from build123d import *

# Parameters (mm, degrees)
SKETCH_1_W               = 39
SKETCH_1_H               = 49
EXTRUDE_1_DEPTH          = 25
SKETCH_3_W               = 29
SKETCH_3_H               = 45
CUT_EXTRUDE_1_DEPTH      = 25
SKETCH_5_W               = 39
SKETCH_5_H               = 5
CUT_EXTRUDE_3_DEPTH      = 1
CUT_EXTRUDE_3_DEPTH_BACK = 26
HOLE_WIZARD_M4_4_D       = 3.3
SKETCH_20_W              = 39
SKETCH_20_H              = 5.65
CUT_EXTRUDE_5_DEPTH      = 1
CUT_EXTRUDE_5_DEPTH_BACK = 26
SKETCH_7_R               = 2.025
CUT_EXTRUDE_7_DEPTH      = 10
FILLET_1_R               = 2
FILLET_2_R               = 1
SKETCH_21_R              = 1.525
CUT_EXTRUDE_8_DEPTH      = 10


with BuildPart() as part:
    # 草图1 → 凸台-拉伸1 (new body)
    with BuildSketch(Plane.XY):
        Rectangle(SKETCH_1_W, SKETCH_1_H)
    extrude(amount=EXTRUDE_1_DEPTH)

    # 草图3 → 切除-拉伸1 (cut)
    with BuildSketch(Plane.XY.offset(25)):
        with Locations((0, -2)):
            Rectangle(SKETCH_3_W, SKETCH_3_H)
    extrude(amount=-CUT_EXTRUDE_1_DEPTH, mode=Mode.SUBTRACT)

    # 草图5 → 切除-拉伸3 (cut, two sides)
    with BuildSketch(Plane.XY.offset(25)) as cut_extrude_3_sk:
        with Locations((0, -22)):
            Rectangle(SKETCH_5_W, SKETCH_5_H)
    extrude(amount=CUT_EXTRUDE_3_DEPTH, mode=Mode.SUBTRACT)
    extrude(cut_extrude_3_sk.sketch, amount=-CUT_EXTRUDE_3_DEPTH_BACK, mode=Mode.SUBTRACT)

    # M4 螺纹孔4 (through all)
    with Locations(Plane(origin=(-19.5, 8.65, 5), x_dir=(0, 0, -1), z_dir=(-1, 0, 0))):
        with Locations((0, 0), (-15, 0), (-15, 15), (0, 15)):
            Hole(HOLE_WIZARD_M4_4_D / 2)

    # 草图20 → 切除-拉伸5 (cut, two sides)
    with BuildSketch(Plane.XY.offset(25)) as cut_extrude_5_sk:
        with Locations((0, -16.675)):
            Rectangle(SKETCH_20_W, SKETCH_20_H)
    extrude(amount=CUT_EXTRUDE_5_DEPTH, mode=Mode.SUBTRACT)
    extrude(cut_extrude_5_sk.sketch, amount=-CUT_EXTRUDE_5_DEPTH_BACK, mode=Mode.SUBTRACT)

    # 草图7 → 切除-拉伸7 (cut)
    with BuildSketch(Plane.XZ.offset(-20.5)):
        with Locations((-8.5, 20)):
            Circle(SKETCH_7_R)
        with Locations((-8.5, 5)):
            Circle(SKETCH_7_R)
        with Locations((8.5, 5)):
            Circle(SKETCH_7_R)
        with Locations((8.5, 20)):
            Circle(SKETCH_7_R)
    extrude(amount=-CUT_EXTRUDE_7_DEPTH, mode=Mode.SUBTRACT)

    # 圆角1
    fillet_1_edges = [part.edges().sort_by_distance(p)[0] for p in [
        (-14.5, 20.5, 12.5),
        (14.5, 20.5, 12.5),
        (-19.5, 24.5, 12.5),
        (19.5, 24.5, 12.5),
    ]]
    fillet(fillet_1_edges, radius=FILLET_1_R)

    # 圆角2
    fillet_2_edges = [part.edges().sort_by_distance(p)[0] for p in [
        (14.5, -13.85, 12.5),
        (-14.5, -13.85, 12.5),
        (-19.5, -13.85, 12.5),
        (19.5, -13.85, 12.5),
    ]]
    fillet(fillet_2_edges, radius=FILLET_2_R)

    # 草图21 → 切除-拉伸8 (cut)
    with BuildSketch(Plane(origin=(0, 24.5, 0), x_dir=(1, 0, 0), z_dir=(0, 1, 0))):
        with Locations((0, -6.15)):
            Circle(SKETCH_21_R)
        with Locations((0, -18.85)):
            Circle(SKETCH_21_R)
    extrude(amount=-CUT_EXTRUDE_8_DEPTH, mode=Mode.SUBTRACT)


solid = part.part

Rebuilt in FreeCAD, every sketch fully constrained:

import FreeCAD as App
import Part
import Sketcher


def edges_at(feature, points):
    """Names of the edges that pass closest to the given points."""
    edges = feature.Shape.Edges
    near = lambda p: min(range(len(edges)), key=lambda i: edges[i].distToShape(Part.Vertex(*p))[0])
    return sorted({f"Edge{near(p) + 1}" for p in points})

doc = App.newDocument("Part")
body = doc.addObject("PartDesign::Body", "Body")

# Sketch on XY plane
sketch1 = body.newObject("Sketcher::SketchObject", "Sketch")
sketch1.AttachmentSupport = (doc.getObject("XY_Plane"), [""])
sketch1.MapMode = "FlatFace"
sketch1.addGeometry(Part.LineSegment(App.Vector(-20, 24, 0), App.Vector(-20, -24, 0)), False)
sketch1.addGeometry(Part.LineSegment(App.Vector(-20, -24, 0), App.Vector(20, -24, 0)), False)
sketch1.addGeometry(Part.LineSegment(App.Vector(20, -24, 0), App.Vector(20, 24, 0)), False)
sketch1.addGeometry(Part.LineSegment(App.Vector(20, 24, 0), App.Vector(-20, 24, 0)), False)
sketch1.addConstraint(Sketcher.Constraint("Coincident", 0, 2, 1, 1))
sketch1.addConstraint(Sketcher.Constraint("Coincident", 1, 2, 2, 1))
sketch1.addConstraint(Sketcher.Constraint("Coincident", 2, 2, 3, 1))
sketch1.addConstraint(Sketcher.Constraint("Coincident", 3, 2, 0, 1))
sketch1.addConstraint(Sketcher.Constraint("Vertical", 0))
sketch1.addConstraint(Sketcher.Constraint("Horizontal", 1))
sketch1.addConstraint(Sketcher.Constraint("Vertical", 2))
sketch1.addConstraint(Sketcher.Constraint("Horizontal", 3))
sketch1.addConstraint(Sketcher.Constraint("Symmetric", 0, 2, 2, 2, -1, 1))
sketch1.addConstraint(Sketcher.Constraint("DistanceX", 1, 1, 1, 2, 39.0))
sketch1.addConstraint(Sketcher.Constraint("DistanceY", 0, 2, 0, 1, 49.0))
pad1 = body.newObject("PartDesign::Pad", "Pad")
pad1.Profile = sketch1
pad1.Length = 25

# Sketch on XY plane
sketch2 = body.newObject("Sketcher::SketchObject", "Sketch001")
sketch2.AttachmentSupport = (doc.getObject("XY_Plane"), [""])
sketch2.MapMode = "FlatFace"
sketch2.AttachmentOffset = App.Placement(App.Vector(0, 0, 25), App.Rotation())
sketch2.addGeometry(Part.LineSegment(App.Vector(-14, 20, 0), App.Vector(-14, -24, 0)), False)
sketch2.addGeometry(Part.LineSegment(App.Vector(-14, -24, 0), App.Vector(14, -24, 0)), False)
sketch2.addGeometry(Part.LineSegment(App.Vector(14, -24, 0), App.Vector(14, 20, 0)), False)
sketch2.addGeometry(Part.LineSegment(App.Vector(14, 20, 0), App.Vector(-14, 20, 0)), False)
sketch2.addConstraint(Sketcher.Constraint("Coincident", 0, 2, 1, 1))
sketch2.addConstraint(Sketcher.Constraint("Coincident", 1, 2, 2, 1))
sketch2.addConstraint(Sketcher.Constraint("Coincident", 2, 2, 3, 1))
sketch2.addConstraint(Sketcher.Constraint("Coincident", 3, 2, 0, 1))
sketch2.addConstraint(Sketcher.Constraint("Vertical", 0))
sketch2.addConstraint(Sketcher.Constraint("Horizontal", 1))
sketch2.addConstraint(Sketcher.Constraint("Vertical", 2))
sketch2.addConstraint(Sketcher.Constraint("Horizontal", 3))
sketch2.addConstraint(Sketcher.Constraint("DistanceX", 1, 1, 1, 2, 29.0))
sketch2.addConstraint(Sketcher.Constraint("DistanceY", 0, 2, 0, 1, 45.0))
sketch2.addConstraint(Sketcher.Constraint("DistanceX", 0, 2, -1, 1, 14.5))
sketch2.addConstraint(Sketcher.Constraint("DistanceY", 0, 2, -1, 1, 24.5))
pocket1 = body.newObject("PartDesign::Pocket", "Pocket")
pocket1.Profile = sketch2
pocket1.Length = 25

# Sketch on XY plane
sketch3 = body.newObject("Sketcher::SketchObject", "Sketch002")
sketch3.AttachmentSupport = (doc.getObject("XY_Plane"), [""])
sketch3.MapMode = "FlatFace"
sketch3.AttachmentOffset = App.Placement(App.Vector(0, 0, 25), App.Rotation())
sketch3.addGeometry(Part.LineSegment(App.Vector(-20, -20, 0), App.Vector(-20, -24, 0)), False)
sketch3.addGeometry(Part.LineSegment(App.Vector(-20, -24, 0), App.Vector(20, -24, 0)), False)
sketch3.addGeometry(Part.LineSegment(App.Vector(20, -24, 0), App.Vector(20, -20, 0)), False)
sketch3.addGeometry(Part.LineSegment(App.Vector(20, -20, 0), App.Vector(-20, -20, 0)), False)
sketch3.addConstraint(Sketcher.Constraint("Coincident", 0, 2, 1, 1))
sketch3.addConstraint(Sketcher.Constraint("Coincident", 1, 2, 2, 1))
sketch3.addConstraint(Sketcher.Constraint("Coincident", 2, 2, 3, 1))
sketch3.addConstraint(Sketcher.Constraint("Coincident", 3, 2, 0, 1))
sketch3.addConstraint(Sketcher.Constraint("Vertical", 0))
sketch3.addConstraint(Sketcher.Constraint("Horizontal", 1))
sketch3.addConstraint(Sketcher.Constraint("Vertical", 2))
sketch3.addConstraint(Sketcher.Constraint("Horizontal", 3))
sketch3.addConstraint(Sketcher.Constraint("DistanceX", 1, 1, 1, 2, 39.0))
sketch3.addConstraint(Sketcher.Constraint("DistanceY", 0, 2, 0, 1, 5.0))
sketch3.addConstraint(Sketcher.Constraint("DistanceX", 0, 2, -1, 1, 19.5))
sketch3.addConstraint(Sketcher.Constraint("DistanceY", 0, 2, -1, 1, 24.5))
pocket2 = body.newObject("PartDesign::Pocket", "Pocket001")
pocket2.Profile = sketch3
pocket2.Type = "ThroughAll"
pocket2.Midplane = True

# Sketch on YZ plane
sketch4 = body.newObject("Sketcher::SketchObject", "Sketch003")
sketch4.AttachmentSupport = (doc.getObject("YZ_Plane"), [""])
sketch4.MapMode = "FlatFace"
sketch4.AttachmentOffset = App.Placement(App.Vector(0, 0, -19.5), App.Rotation())
sketch4.addGeometry(Part.Circle(App.Vector(8.7, 5, 0), App.Vector(0, 0, 1), 1.6), False)
sketch4.addGeometry(Part.Circle(App.Vector(8.7, 20, 0), App.Vector(0, 0, 1), 1.6), False)
sketch4.addGeometry(Part.Circle(App.Vector(-6.3, 20, 0), App.Vector(0, 0, 1), 1.6), False)
sketch4.addGeometry(Part.Circle(App.Vector(-6.3, 5, 0), App.Vector(0, 0, 1), 1.6), False)
sketch4.addConstraint(Sketcher.Constraint("Equal", 0, 1))
sketch4.addConstraint(Sketcher.Constraint("Equal", 1, 2))
sketch4.addConstraint(Sketcher.Constraint("Equal", 2, 3))
sketch4.addConstraint(Sketcher.Constraint("Horizontal", 1, 3, 2, 3))
sketch4.addConstraint(Sketcher.Constraint("Horizontal", 0, 3, 3, 3))
sketch4.addConstraint(Sketcher.Constraint("Vertical", 0, 3, 1, 3))
sketch4.addConstraint(Sketcher.Constraint("Vertical", 2, 3, 3, 3))
sketch4.addConstraint(Sketcher.Constraint("Diameter", 0, 3.3))
sketch4.addConstraint(Sketcher.Constraint("DistanceY", -1, 1, 0, 3, 5.0))
sketch4.addConstraint(Sketcher.Constraint("DistanceY", -1, 1, 1, 3, 20.0))
sketch4.addConstraint(Sketcher.Constraint("DistanceX", 2, 3, 1, 3, 15.0))
sketch4.addConstraint(Sketcher.Constraint("DistanceX", -1, 1, 0, 3, 8.65))
doc.recompute()
hole = body.newObject("PartDesign::Hole", "Hole")
hole.Profile = sketch4
hole.ThreadType = "None"
hole.Diameter = 3.3
hole.DepthType = "ThroughAll"
hole.Reversed = True

# Sketch on XY plane
sketch5 = body.newObject("Sketcher::SketchObject", "Sketch004")
sketch5.AttachmentSupport = (doc.getObject("XY_Plane"), [""])
sketch5.MapMode = "FlatFace"
sketch5.AttachmentOffset = App.Placement(App.Vector(0, 0, 25), App.Rotation())
sketch5.addGeometry(Part.LineSegment(App.Vector(-20, -14, 0), App.Vector(-20, -20, 0)), False)
sketch5.addGeometry(Part.LineSegment(App.Vector(-20, -20, 0), App.Vector(20, -20, 0)), False)
sketch5.addGeometry(Part.LineSegment(App.Vector(20, -20, 0), App.Vector(20, -14, 0)), False)
sketch5.addGeometry(Part.LineSegment(App.Vector(20, -14, 0), App.Vector(-20, -14, 0)), False)
sketch5.addConstraint(Sketcher.Constraint("Coincident", 0, 2, 1, 1))
sketch5.addConstraint(Sketcher.Constraint("Coincident", 1, 2, 2, 1))
sketch5.addConstraint(Sketcher.Constraint("Coincident", 2, 2, 3, 1))
sketch5.addConstraint(Sketcher.Constraint("Coincident", 3, 2, 0, 1))
sketch5.addConstraint(Sketcher.Constraint("Vertical", 0))
sketch5.addConstraint(Sketcher.Constraint("Horizontal", 1))
sketch5.addConstraint(Sketcher.Constraint("Vertical", 2))
sketch5.addConstraint(Sketcher.Constraint("Horizontal", 3))
sketch5.addConstraint(Sketcher.Constraint("DistanceX", 1, 1, 1, 2, 39.0))
sketch5.addConstraint(Sketcher.Constraint("DistanceY", 0, 2, 0, 1, 5.65))
sketch5.addConstraint(Sketcher.Constraint("DistanceX", 0, 2, -1, 1, 19.5))
sketch5.addConstraint(Sketcher.Constraint("DistanceY", 0, 2, -1, 1, 19.5))
pocket3 = body.newObject("PartDesign::Pocket", "Pocket002")
pocket3.Profile = sketch5
pocket3.Type = "ThroughAll"
pocket3.Midplane = True

# Sketch on XZ plane
sketch6 = body.newObject("Sketcher::SketchObject", "Sketch005")
sketch6.AttachmentSupport = (doc.getObject("XZ_Plane"), [""])
sketch6.MapMode = "FlatFace"
sketch6.AttachmentOffset = App.Placement(App.Vector(0, 0, -20.5), App.Rotation())
sketch6.addGeometry(Part.Circle(App.Vector(-8.5, 20, 0), App.Vector(0, 0, 1), 2), False)
sketch6.addGeometry(Part.Circle(App.Vector(-8.5, 5, 0), App.Vector(0, 0, 1), 2), False)
sketch6.addGeometry(Part.Circle(App.Vector(8.5, 5, 0), App.Vector(0, 0, 1), 2), False)
sketch6.addGeometry(Part.Circle(App.Vector(8.5, 20, 0), App.Vector(0, 0, 1), 2), False)
sketch6.addConstraint(Sketcher.Constraint("Equal", 0, 1))
sketch6.addConstraint(Sketcher.Constraint("Equal", 1, 2))
sketch6.addConstraint(Sketcher.Constraint("Equal", 2, 3))
sketch6.addConstraint(Sketcher.Constraint("Symmetric", 1, 3, 2, 3, -2))
sketch6.addConstraint(Sketcher.Constraint("Symmetric", 0, 3, 3, 3, -2))
sketch6.addConstraint(Sketcher.Constraint("Vertical", 0, 3, 1, 3))
sketch6.addConstraint(Sketcher.Constraint("Diameter", 0, 4.05))
sketch6.addConstraint(Sketcher.Constraint("DistanceY", -1, 1, 0, 3, 20.0))
sketch6.addConstraint(Sketcher.Constraint("DistanceY", -1, 1, 1, 3, 5.0))
sketch6.addConstraint(Sketcher.Constraint("DistanceX", 1, 3, 2, 3, 17.0))
pocket4 = body.newObject("PartDesign::Pocket", "Pocket003")
pocket4.Profile = sketch6
pocket4.Length = 10
doc.recompute()

fillet = body.newObject("PartDesign::Fillet", "Fillet")
fillet.Base = (pocket4, edges_at(pocket4, [
    (-14.5, 20.5, 12.5),
    (14.5, 20.5, 12.5),
    (-19.5, 24.5, 12.5),
    (19.5, 24.5, 12.5),
]))
fillet.Radius = 2
doc.recompute()

fillet2 = body.newObject("PartDesign::Fillet", "Fillet001")
fillet2.Base = (fillet, edges_at(fillet, [
    (14.5, -13.85, 12.5),
    (-14.5, -13.85, 12.5),
    (-19.5, -13.85, 12.5),
    (19.5, -13.85, 12.5),
]))
fillet2.Radius = 1

# Sketch on XZ plane
sketch7 = body.newObject("Sketcher::SketchObject", "Sketch006")
sketch7.AttachmentSupport = (doc.getObject("XZ_Plane"), [""])
sketch7.MapMode = "FlatFace"
sketch7.AttachmentOffset = App.Placement(App.Vector(0, 0, -24.5), App.Rotation())
sketch7.addGeometry(Part.Circle(App.Vector(0, 6.2, 0), App.Vector(0, 0, 1), 1.5), False)
sketch7.addGeometry(Part.Circle(App.Vector(0, 18.9, 0), App.Vector(0, 0, 1), 1.5), False)
sketch7.addConstraint(Sketcher.Constraint("Equal", 0, 1))
sketch7.addConstraint(Sketcher.Constraint("PointOnObject", 0, 3, -2))
sketch7.addConstraint(Sketcher.Constraint("PointOnObject", 1, 3, -2))
sketch7.addConstraint(Sketcher.Constraint("Diameter", 0, 3.05))
sketch7.addConstraint(Sketcher.Constraint("DistanceY", 0, 3, 1, 3, 12.7))
sketch7.addConstraint(Sketcher.Constraint("DistanceY", -1, 1, 0, 3, 6.15))
pocket5 = body.newObject("PartDesign::Pocket", "Pocket004")
pocket5.Profile = sketch7
pocket5.Length = 10
pocket5.Reversed = True

doc.recompute()
